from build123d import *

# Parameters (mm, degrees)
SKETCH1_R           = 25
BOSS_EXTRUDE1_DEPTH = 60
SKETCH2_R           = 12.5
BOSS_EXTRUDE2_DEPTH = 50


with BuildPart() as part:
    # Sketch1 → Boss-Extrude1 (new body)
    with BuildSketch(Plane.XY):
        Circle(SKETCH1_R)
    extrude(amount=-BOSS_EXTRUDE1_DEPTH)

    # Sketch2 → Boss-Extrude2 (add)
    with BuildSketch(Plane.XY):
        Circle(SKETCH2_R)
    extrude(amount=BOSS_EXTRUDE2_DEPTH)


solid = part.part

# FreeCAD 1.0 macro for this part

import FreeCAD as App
import Part
import Sketcher

V = App.Vector

doc = App.newDocument("Part")
body = doc.addObject("PartDesign::Body", "Body")

# Sketch on XY plane
sketch1 = body.newObject("Sketcher::SketchObject", "Sketch")
sketch1.AttachmentSupport = (doc.getObject("XY_Plane"), [""])
sketch1.MapMode = "FlatFace"
sketch1.addGeometry(Part.Circle(V(0, 0, 0), V(0, 0, 1), 25), False)
sketch1.addConstraint([
    Sketcher.Constraint("Coincident", 0, 3, -1, 1),
    Sketcher.Constraint("Diameter", 0, 50.0),
])
pad1 = body.newObject("PartDesign::Pad", "Pad")
pad1.Profile = sketch1
pad1.Length = 60
pad1.Reversed = True

# Sketch on XY plane
sketch2 = body.newObject("Sketcher::SketchObject", "Sketch001")
sketch2.AttachmentSupport = (doc.getObject("XY_Plane"), [""])
sketch2.MapMode = "FlatFace"
sketch2.addGeometry(Part.Circle(V(0, 0, 0), V(0, 0, 1), 12), False)
sketch2.addConstraint([
    Sketcher.Constraint("Coincident", 0, 3, -1, 1),
    Sketcher.Constraint("Diameter", 0, 25.0),
])
pad2 = body.newObject("PartDesign::Pad", "Pad001")
pad2.Profile = sketch2
pad2.Length = 50

doc.recompute()
